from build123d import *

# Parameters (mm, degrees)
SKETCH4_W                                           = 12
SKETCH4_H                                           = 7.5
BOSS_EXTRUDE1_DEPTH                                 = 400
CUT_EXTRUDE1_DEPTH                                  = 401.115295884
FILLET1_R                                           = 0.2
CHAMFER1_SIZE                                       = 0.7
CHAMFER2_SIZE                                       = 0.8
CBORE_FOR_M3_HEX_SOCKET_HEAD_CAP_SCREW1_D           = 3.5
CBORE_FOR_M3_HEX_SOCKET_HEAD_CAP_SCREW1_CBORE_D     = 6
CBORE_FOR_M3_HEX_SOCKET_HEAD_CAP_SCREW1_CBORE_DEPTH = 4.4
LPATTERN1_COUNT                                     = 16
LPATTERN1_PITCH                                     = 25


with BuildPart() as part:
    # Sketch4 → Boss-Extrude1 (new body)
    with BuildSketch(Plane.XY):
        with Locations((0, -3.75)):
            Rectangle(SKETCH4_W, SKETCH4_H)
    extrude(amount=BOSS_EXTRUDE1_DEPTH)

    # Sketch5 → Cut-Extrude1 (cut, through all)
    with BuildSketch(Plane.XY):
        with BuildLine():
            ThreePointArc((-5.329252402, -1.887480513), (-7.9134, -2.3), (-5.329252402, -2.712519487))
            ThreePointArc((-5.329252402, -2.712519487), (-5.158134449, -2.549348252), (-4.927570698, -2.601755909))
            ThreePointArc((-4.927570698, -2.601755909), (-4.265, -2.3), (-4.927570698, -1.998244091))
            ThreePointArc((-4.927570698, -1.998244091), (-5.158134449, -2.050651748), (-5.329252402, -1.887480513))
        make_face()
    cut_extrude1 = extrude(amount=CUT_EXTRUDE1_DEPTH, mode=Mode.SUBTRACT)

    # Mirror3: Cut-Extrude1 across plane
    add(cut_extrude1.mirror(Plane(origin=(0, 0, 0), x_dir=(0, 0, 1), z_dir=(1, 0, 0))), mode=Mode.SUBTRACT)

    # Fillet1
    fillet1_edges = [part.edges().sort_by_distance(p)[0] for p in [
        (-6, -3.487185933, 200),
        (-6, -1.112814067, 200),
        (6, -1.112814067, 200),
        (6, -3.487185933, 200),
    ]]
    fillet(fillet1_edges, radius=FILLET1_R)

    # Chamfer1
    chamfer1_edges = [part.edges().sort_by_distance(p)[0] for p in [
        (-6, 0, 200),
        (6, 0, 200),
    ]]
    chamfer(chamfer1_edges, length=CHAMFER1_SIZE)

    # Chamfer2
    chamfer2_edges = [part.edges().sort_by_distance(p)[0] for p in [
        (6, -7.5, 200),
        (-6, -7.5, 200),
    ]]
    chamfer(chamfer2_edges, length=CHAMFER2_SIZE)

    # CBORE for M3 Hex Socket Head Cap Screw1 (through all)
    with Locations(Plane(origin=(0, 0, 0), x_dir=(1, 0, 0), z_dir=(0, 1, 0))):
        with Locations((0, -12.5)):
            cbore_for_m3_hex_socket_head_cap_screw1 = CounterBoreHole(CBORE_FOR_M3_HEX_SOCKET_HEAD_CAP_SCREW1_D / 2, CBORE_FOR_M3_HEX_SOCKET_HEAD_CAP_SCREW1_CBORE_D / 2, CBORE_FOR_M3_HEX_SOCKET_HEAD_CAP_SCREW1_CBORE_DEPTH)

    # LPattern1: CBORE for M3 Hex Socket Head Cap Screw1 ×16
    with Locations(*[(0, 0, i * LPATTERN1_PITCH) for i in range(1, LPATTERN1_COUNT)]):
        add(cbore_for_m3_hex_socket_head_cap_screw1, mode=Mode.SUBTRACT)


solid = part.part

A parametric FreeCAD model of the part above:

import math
import FreeCAD as App
import Part
import Sketcher


def edges_at(feature, points):
    """Names of the edges that pass closest to the given points."""
    edges = feature.Shape.Edges
    near = lambda p: min(range(len(edges)), key=lambda i: edges[i].distToShape(Part.Vertex(*p))[0])
    return sorted({f"Edge{near(p) + 1}" for p in points})


def add_polygon(sketch, points):
    """Adds a closed chain of lines whose ends are joined by coincident constraints."""
    first, n = sketch.GeometryCount, len(points)
    for a, b in zip(points, points[1:] + points[:1]):
        sketch.addGeometry(Part.LineSegment(App.Vector(*a, 0), App.Vector(*b, 0)), False)
    for i in range(n):
        sketch.addConstraint(Sketcher.Constraint("Coincident", first + i, 2, first + (i + 1) % n, 1))

doc = App.newDocument("Part")
params = doc.addObject("Spreadsheet::Sheet", "Params")
for row, (alias, value) in enumerate([
    ("sketch1_width", "12 mm"),
    ("sketch1_height", "7.5 mm"),
    ("pad1_length", "400 mm"),
    ("sketch2_radius", "0.4 mm"),
    ("sketch2_radius2", "0.25 mm"),
    ("fillet_radius", "0.2 mm"),
    ("chamfer_size", "0.7 mm"),
    ("chamfer2_size", "0.8 mm"),
    ("sketch3_diameter", "3.5 mm"),
    ("hole_diameter", "3.5 mm"),
    ("hole_cbore_diameter", "6 mm"),
    ("hole_cbore_depth", "4.4 mm"),
    ("linearpattern_pitch", "25 mm"),
], start=1):
    params.set(f"A{row}", alias)
    params.set(f"B{row}", "=" + value)
    params.setAlias(f"B{row}", alias)

body = doc.addObject("PartDesign::Body", "Body")

# Sketch on XY plane
sketch1 = doc.addObject("Sketcher::SketchObject", "Sketch")
body.addObject(sketch1)
sketch1.AttachmentSupport = (doc.XY_Plane, [""])
sketch1.MapMode = "FlatFace"
add_polygon(sketch1, [(-6, 0), (-6, -7.5), (6, -7.5), (6, 0)])  # lines 0-3
sketch1.addConstraint([
    Sketcher.Constraint("Vertical", 0),
    Sketcher.Constraint("Horizontal", 1),
    Sketcher.Constraint("Vertical", 2),
    Sketcher.Constraint("Horizontal", 3),
    Sketcher.Constraint("Symmetric", 2, 2, 3, 2, -1, 1),
    Sketcher.Constraint("DistanceX", 1, 1, 1, 2, 12.0),
    Sketcher.Constraint("DistanceY", 0, 2, 0, 1, 7.5),
])
sketch1.setExpression("Constraints[9]", "Params.sketch1_width")
sketch1.setExpression("Constraints[10]", "Params.sketch1_height")
pad1 = doc.addObject("PartDesign::Pad", "Pad")
body.addObject(pad1)
pad1.Profile = sketch1
pad1.setExpression("Length", "Params.pad1_length")

# Sketch on XY plane
sketch2 = doc.addObject("Sketcher::SketchObject", "Sketch001")
body.addObject(sketch2)
sketch2.AttachmentSupport = (doc.XY_Plane, [""])
sketch2.MapMode = "FlatFace"
sketch2.addGeometry([
    Part.ArcOfCircle(Part.Circle(App.Vector(-6.5884, -2.3, 0), App.Vector(0, 0, 1), 1.325), math.radians(18.13973), math.radians(341.86027)),
    Part.ArcOfCircle(Part.Circle(App.Vector(-5.091677, -2.790353, 0), App.Vector(0, 0, 1), 0.25), math.radians(48.972078), math.radians(161.86027)),
    Part.ArcOfCircle(Part.Circle(App.Vector(-4.665, -2.3, 0), App.Vector(0, 0, 1), 0.4), math.radians(-131.027922), math.radians(131.027922)),
    Part.ArcOfCircle(Part.Circle(App.Vector(-5.091677, -1.809647, 0), App.Vector(0, 0, 1), 0.25), math.radians(-161.86027), math.radians(-48.972078)),
], False)
sketch2.addConstraint([
    Sketcher.Constraint("Tangent", 0, 2, 1, 2),
    Sketcher.Constraint("Tangent", 1, 1, 2, 1),
    Sketcher.Constraint("Tangent", 2, 2, 3, 2),
    Sketcher.Constraint("Tangent", 3, 1, 0, 1),
    Sketcher.Constraint("Equal", 1, 3),
    Sketcher.Constraint("Horizontal", 0, 3, 2, 3),
    Sketcher.Constraint("Radius", 2, 0.4),
    Sketcher.Constraint("Radius", 1, 0.25),
    Sketcher.Constraint("Radius", 0, 1.325),
    Sketcher.Constraint("DistanceY", 0, 3, -1, 1, 2.3),
    Sketcher.Constraint("DistanceX", 2, 3, -1, 1, 4.665),
    Sketcher.Constraint("DistanceX", 0, 3, -1, 1, 6.5884),
])
sketch2.setExpression("Constraints[6]", "Params.sketch2_radius")
sketch2.setExpression("Constraints[7]", "Params.sketch2_radius2")
pocket1 = doc.addObject("PartDesign::Pocket", "Pocket")
body.addObject(pocket1)
pocket1.Profile = sketch2
pocket1.Type = "ThroughAll"
pocket1.Reversed = True
doc.recompute()

mirrored = doc.addObject("PartDesign::Mirrored", "Mirrored")
body.addObject(mirrored)
mirrored.Originals = [pocket1]
mirrored.MirrorPlane = (doc.YZ_Plane, [""])
body.Tip = mirrored
doc.recompute()

fillet = doc.addObject("PartDesign::Fillet", "Fillet")
body.addObject(fillet)
fillet.Base = (mirrored, edges_at(mirrored, [
    (-6, -3.487, 200),
    (-6, -1.113, 200),
    (6, -1.113, 200),
    (6, -3.487, 200),
]))
fillet.setExpression("Radius", "Params.fillet_radius")
doc.recompute()

chamfer = doc.addObject("PartDesign::Chamfer", "Chamfer")
body.addObject(chamfer)
chamfer.Base = (fillet, edges_at(fillet, [(-6, 0, 200), (6, 0, 200)]))
chamfer.setExpression("Size", "Params.chamfer_size")
doc.recompute()

chamfer2 = doc.addObject("PartDesign::Chamfer", "Chamfer001")
body.addObject(chamfer2)
chamfer2.Base = (chamfer, edges_at(chamfer, [(6, -7.5, 200), (-6, -7.5, 200)]))
chamfer2.setExpression("Size", "Params.chamfer2_size")

# Sketch on XZ plane
sketch3 = doc.addObject("Sketcher::SketchObject", "Sketch002")
body.addObject(sketch3)
sketch3.AttachmentSupport = (doc.XZ_Plane, [""])
sketch3.MapMode = "FlatFace"
sketch3.addGeometry(Part.Circle(App.Vector(0, 12.5, 0), App.Vector(0, 0, 1), 1.75), False)
sketch3.addConstraint([
    Sketcher.Constraint("PointOnObject", 0, 3, -2),
    Sketcher.Constraint("Diameter", 0, 3.5),
    Sketcher.Constraint("DistanceY", -1, 1, 0, 3, 12.5),
])
sketch3.setExpression("Constraints[1]", "Params.sketch3_diameter")
doc.recompute()
hole = doc.addObject("PartDesign::Hole", "Hole")
body.addObject(hole)
hole.Profile = sketch3
hole.ThreadType = "None"
hole.setExpression("Diameter", "Params.hole_diameter")
hole.DepthType = "ThroughAll"
hole.HoleCutType = "Counterbore"
hole.setExpression("HoleCutDiameter", "Params.hole_cbore_diameter")
hole.setExpression("HoleCutDepth", "Params.hole_cbore_depth")
hole.Reversed = True
doc.recompute()

linearpattern = doc.addObject("PartDesign::LinearPattern", "LinearPattern")
body.addObject(linearpattern)
linearpattern.Originals = [hole]
linearpattern.Direction = (doc.Z_Axis, [""])
linearpattern.Mode = "offset"
linearpattern.setExpression("Offset", "Params.linearpattern_pitch")
linearpattern.Occurrences = 16
body.Tip = linearpattern

doc.recompute()
